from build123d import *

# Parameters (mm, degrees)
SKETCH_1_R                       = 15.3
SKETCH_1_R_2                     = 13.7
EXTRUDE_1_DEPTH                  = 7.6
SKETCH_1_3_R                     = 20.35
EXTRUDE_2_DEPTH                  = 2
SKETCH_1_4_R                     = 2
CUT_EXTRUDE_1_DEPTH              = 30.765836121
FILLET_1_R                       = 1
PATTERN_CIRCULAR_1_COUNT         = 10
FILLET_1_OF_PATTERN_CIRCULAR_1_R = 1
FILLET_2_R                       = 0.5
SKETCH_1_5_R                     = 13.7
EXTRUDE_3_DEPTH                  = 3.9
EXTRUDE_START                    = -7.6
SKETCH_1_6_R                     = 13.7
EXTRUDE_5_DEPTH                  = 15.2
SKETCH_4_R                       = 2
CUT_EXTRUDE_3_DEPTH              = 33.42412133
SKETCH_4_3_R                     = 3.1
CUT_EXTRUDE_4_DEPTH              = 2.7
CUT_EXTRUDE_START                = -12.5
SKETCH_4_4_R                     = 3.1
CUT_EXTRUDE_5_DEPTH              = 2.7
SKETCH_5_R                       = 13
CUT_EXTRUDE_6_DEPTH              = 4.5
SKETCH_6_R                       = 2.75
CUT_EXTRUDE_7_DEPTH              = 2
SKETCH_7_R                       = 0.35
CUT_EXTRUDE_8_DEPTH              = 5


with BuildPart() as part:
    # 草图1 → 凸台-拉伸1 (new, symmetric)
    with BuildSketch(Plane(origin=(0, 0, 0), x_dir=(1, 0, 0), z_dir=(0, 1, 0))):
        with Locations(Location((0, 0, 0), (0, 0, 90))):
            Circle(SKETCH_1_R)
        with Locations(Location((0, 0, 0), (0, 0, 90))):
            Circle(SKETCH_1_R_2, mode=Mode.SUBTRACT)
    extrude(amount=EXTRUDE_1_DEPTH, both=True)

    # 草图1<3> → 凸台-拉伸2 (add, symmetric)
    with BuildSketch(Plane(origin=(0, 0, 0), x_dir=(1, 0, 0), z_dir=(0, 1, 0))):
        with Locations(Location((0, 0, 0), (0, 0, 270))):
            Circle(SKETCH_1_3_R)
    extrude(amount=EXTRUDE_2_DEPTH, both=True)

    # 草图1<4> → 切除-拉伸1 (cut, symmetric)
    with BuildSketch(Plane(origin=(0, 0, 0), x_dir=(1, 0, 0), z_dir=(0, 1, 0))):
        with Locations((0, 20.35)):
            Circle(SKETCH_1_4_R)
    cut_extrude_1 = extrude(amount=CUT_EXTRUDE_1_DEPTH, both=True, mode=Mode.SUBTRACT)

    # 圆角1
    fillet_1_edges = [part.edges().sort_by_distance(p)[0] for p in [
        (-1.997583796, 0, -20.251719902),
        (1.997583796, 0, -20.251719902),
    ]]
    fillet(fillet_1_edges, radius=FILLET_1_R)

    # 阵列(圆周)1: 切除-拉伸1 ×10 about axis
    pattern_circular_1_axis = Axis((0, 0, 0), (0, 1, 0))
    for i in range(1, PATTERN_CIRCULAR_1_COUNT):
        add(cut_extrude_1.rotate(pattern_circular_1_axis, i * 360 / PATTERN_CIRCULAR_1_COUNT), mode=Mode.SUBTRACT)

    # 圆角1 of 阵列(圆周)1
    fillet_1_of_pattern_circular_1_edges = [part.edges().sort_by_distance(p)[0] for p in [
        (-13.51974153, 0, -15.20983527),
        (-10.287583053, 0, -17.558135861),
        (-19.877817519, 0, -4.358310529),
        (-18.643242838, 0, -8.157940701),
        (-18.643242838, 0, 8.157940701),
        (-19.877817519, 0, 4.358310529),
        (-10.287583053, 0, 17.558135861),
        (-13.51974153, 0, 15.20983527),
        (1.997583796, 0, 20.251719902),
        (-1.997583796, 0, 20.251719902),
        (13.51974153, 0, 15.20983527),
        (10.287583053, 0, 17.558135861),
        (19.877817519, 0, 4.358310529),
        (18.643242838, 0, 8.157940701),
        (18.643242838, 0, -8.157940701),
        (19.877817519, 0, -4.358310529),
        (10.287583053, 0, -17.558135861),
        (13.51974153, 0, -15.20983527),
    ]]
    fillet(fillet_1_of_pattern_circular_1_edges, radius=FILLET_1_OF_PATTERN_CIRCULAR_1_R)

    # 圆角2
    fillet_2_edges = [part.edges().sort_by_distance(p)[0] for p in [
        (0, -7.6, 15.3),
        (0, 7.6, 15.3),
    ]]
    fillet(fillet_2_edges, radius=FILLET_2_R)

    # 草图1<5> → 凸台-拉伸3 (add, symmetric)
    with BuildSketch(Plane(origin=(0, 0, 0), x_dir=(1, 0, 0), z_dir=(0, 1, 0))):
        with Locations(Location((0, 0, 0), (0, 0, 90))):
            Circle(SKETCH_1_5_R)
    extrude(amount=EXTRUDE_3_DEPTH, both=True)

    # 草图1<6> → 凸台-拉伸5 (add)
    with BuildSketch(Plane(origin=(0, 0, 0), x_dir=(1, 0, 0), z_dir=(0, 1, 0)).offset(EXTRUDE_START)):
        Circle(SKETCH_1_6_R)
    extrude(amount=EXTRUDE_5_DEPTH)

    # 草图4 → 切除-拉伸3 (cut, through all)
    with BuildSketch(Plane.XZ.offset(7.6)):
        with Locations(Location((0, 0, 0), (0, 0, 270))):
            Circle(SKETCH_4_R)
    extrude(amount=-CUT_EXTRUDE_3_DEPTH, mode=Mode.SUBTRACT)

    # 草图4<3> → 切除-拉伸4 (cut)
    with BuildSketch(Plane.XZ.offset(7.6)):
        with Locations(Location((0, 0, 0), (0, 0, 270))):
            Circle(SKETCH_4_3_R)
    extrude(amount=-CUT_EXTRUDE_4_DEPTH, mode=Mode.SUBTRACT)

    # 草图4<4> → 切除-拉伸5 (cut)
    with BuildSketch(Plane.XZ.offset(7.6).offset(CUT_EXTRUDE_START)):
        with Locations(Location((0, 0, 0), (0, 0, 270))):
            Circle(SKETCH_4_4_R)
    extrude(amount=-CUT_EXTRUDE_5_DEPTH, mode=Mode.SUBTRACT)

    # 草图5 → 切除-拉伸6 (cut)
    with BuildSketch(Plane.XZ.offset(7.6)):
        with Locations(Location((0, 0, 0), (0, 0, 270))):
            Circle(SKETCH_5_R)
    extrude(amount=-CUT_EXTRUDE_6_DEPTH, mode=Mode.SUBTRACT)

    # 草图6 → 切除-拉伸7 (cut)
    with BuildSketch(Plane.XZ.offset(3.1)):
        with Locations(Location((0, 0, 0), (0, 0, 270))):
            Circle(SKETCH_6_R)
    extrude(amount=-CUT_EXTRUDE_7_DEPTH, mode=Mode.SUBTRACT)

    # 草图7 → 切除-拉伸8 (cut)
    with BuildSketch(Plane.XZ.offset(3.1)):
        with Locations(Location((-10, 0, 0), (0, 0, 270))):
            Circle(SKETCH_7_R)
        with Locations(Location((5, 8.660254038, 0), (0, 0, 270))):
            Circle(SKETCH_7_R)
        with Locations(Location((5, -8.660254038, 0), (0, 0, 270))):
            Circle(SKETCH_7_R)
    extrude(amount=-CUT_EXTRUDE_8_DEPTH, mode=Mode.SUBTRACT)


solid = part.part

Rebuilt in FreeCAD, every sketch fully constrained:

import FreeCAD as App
import Part
import Sketcher
from FreeCAD import Vector
Q = App.Units.Quantity


def edges_at(feature, points):
    """Names of the edges that pass closest to the given points."""
    edges = feature.Shape.Edges
    near = lambda p: min(range(len(edges)), key=lambda i: edges[i].distToShape(Part.Vertex(*p))[0])
    return sorted({f"Edge{near(p) + 1}" for p in points})

doc = App.newDocument("Part")
body = doc.addObject("PartDesign::Body", "Body")

# Sketch on XZ plane
sketch1 = body.newObject("Sketcher::SketchObject", "Sketch")
sketch1.AttachmentSupport = (doc.getObject("XZ_Plane"), [""])
sketch1.MapMode = "FlatFace"
sketch1.addGeometry([
    Part.Circle(Vector(0, 0, 0), Vector(0, 0, 1), 15),
    Part.Circle(Vector(0, 0, 0), Vector(0, 0, 1), 14),
], False)
sketch1.addConstraint([
    Sketcher.Constraint("Coincident", 0, 3, -1, 1),
    Sketcher.Constraint("Coincident", 1, 3, -1, 1),
    Sketcher.Constraint("Diameter", 0, Q("30.6 mm")),
    Sketcher.Constraint("Diameter", 1, Q("27.4 mm")),
])
pad1 = body.newObject("PartDesign::Pad", "Pad")
pad1.Profile = sketch1
pad1.Length = 15.2
pad1.Midplane = True

# Sketch on XZ plane
sketch2 = body.newObject("Sketcher::SketchObject", "Sketch001")
sketch2.AttachmentSupport = (doc.getObject("XZ_Plane"), [""])
sketch2.MapMode = "FlatFace"
sketch2.addGeometry(Part.Circle(Vector(0, 0, 0), Vector(0, 0, 1), 20), False)
sketch2.addConstraint([
    Sketcher.Constraint("Coincident", 0, 3, -1, 1),
    Sketcher.Constraint("Diameter", 0, Q("40.7 mm")),
])
pad2 = body.newObject("PartDesign::Pad", "Pad001")
pad2.Profile = sketch2
pad2.Length = 4
pad2.Midplane = True

# Sketch on XZ plane
sketch3 = body.newObject("Sketcher::SketchObject", "Sketch002")
sketch3.AttachmentSupport = (doc.getObject("XZ_Plane"), [""])
sketch3.MapMode = "FlatFace"
sketch3.addGeometry(Part.Circle(Vector(0, -20.4, 0), Vector(0, 0, 1), 2), False)
sketch3.addConstraint([
    Sketcher.Constraint("PointOnObject", 0, 3, -2),
    Sketcher.Constraint("Diameter", 0, Q("4 mm")),
    Sketcher.Constraint("DistanceY", 0, 3, -1, 1, Q("20.35 mm")),
])
pocket1 = body.newObject("PartDesign::Pocket", "Pocket")
pocket1.Profile = sketch3
pocket1.Length = 61.531672
pocket1.Midplane = True
doc.recompute()

fillet = body.newObject("PartDesign::Fillet", "Fillet")
fillet.Base = (pocket1, edges_at(pocket1, [(-1.998, 0, -20.252), (1.998, 0, -20.252)]))
fillet.Radius = 1
doc.recompute()

polarpattern = body.newObject("PartDesign::PolarPattern", "PolarPattern")
polarpattern.Originals = [pocket1]
polarpattern.Axis = (doc.getObject("Y_Axis"), [""])
polarpattern.Angle = 360
polarpattern.Occurrences = 10
body.Tip = polarpattern
doc.recompute()

fillet2 = body.newObject("PartDesign::Fillet", "Fillet001")
fillet2.Base = (polarpattern, edges_at(polarpattern, [
    (-13.52, 0, -15.21),
    (-10.288, 0, -17.558),
    (-19.878, 0, -4.358),
    (-18.643, 0, -8.158),
    (-18.643, 0, 8.158),
    (-19.878, 0, 4.358),
    (-10.288, 0, 17.558),
    (-13.52, 0, 15.21),
    (1.998, 0, 20.252),
    (-1.998, 0, 20.252),
    (13.52, 0, 15.21),
    (10.288, 0, 17.558),
    (19.878, 0, 4.358),
    (18.643, 0, 8.158),
    (18.643, 0, -8.158),
    (19.878, 0, -4.358),
    (10.288, 0, -17.558),
    (13.52, 0, -15.21),
]))
fillet2.Radius = 1
doc.recompute()

fillet3 = body.newObject("PartDesign::Fillet", "Fillet002")
fillet3.Base = (fillet2, edges_at(fillet2, [(0, -7.6, 15.3), (0, 7.6, 15.3)]))
fillet3.Radius = 0.5

# Sketch on XZ plane
sketch4 = body.newObject("Sketcher::SketchObject", "Sketch003")
sketch4.AttachmentSupport = (doc.getObject("XZ_Plane"), [""])
sketch4.MapMode = "FlatFace"
sketch4.addGeometry(Part.Circle(Vector(0, 0, 0), Vector(0, 0, 1), 14), False)
sketch4.addConstraint([
    Sketcher.Constraint("Coincident", 0, 3, -1, 1),
    Sketcher.Constraint("Diameter", 0, Q("27.4 mm")),
])
pad3 = body.newObject("PartDesign::Pad", "Pad002")
pad3.Profile = sketch4
pad3.Length = 7.8
pad3.Midplane = True

# Sketch on XZ plane
sketch5 = body.newObject("Sketcher::SketchObject", "Sketch004")
sketch5.AttachmentSupport = (doc.getObject("XZ_Plane"), [""])
sketch5.MapMode = "FlatFace"
sketch5.AttachmentOffset = App.Placement(Vector(0, 0, 7.6), App.Rotation())
sketch5.addGeometry(Part.Circle(Vector(0, 0, 0), Vector(0, 0, 1), 14), False)
sketch5.addConstraint([
    Sketcher.Constraint("Coincident", 0, 3, -1, 1),
    Sketcher.Constraint("Diameter", 0, Q("27.4 mm")),
])
pad4 = body.newObject("PartDesign::Pad", "Pad003")
pad4.Profile = sketch5
pad4.Length = 15.2
pad4.Reversed = True

# Sketch on XZ plane
sketch6 = body.newObject("Sketcher::SketchObject", "Sketch005")
sketch6.AttachmentSupport = (doc.getObject("XZ_Plane"), [""])
sketch6.MapMode = "FlatFace"
sketch6.AttachmentOffset = App.Placement(Vector(0, 0, 7.6), App.Rotation())
sketch6.addGeometry(Part.Circle(Vector(0, 0, 0), Vector(0, 0, 1), 2), False)
sketch6.addConstraint([
    Sketcher.Constraint("Coincident", 0, 3, -1, 1),
    Sketcher.Constraint("Diameter", 0, Q("4 mm")),
])
pocket2 = body.newObject("PartDesign::Pocket", "Pocket001")
pocket2.Profile = sketch6
pocket2.Type = "ThroughAll"

# Sketch on XZ plane
sketch7 = body.newObject("Sketcher::SketchObject", "Sketch006")
sketch7.AttachmentSupport = (doc.getObject("XZ_Plane"), [""])
sketch7.MapMode = "FlatFace"
sketch7.AttachmentOffset = App.Placement(Vector(0, 0, 7.6), App.Rotation())
sketch7.addGeometry(Part.Circle(Vector(0, 0, 0), Vector(0, 0, 1), 3.1), False)
sketch7.addConstraint([
    Sketcher.Constraint("Coincident", 0, 3, -1, 1),
    Sketcher.Constraint("Diameter", 0, Q("6.2 mm")),
])
pocket3 = body.newObject("PartDesign::Pocket", "Pocket002")
pocket3.Profile = sketch7
pocket3.Length = 2.7

# Sketch on XZ plane
sketch8 = body.newObject("Sketcher::SketchObject", "Sketch007")
sketch8.AttachmentSupport = (doc.getObject("XZ_Plane"), [""])
sketch8.MapMode = "FlatFace"
sketch8.AttachmentOffset = App.Placement(Vector(0, 0, -4.9), App.Rotation())
sketch8.addGeometry(Part.Circle(Vector(0, 0, 0), Vector(0, 0, 1), 3.1), False)
sketch8.addConstraint([
    Sketcher.Constraint("Coincident", 0, 3, -1, 1),
    Sketcher.Constraint("Diameter", 0, Q("6.2 mm")),
])
pocket4 = body.newObject("PartDesign::Pocket", "Pocket003")
pocket4.Profile = sketch8
pocket4.Length = 2.7

# Sketch on XZ plane
sketch9 = body.newObject("Sketcher::SketchObject", "Sketch008")
sketch9.AttachmentSupport = (doc.getObject("XZ_Plane"), [""])
sketch9.MapMode = "FlatFace"
sketch9.AttachmentOffset = App.Placement(Vector(0, 0, 7.6), App.Rotation())
sketch9.addGeometry(Part.Circle(Vector(0, 0, 0), Vector(0, 0, 1), 13), False)
sketch9.addConstraint([
    Sketcher.Constraint("Coincident", 0, 3, -1, 1),
    Sketcher.Constraint("Diameter", 0, Q("26 mm")),
])
pocket5 = body.newObject("PartDesign::Pocket", "Pocket004")
pocket5.Profile = sketch9
pocket5.Length = 4.5

# Sketch on XZ plane
sketch10 = body.newObject("Sketcher::SketchObject", "Sketch009")
sketch10.AttachmentSupport = (doc.getObject("XZ_Plane"), [""])
sketch10.MapMode = "FlatFace"
sketch10.AttachmentOffset = App.Placement(Vector(0, 0, 3.1), App.Rotation())
sketch10.addGeometry(Part.Circle(Vector(0, 0, 0), Vector(0, 0, 1), 2.8), False)
sketch10.addConstraint([
    Sketcher.Constraint("Coincident", 0, 3, -1, 1),
    Sketcher.Constraint("Diameter", 0, Q("5.5 mm")),
])
pocket6 = body.newObject("PartDesign::Pocket", "Pocket005")
pocket6.Profile = sketch10
pocket6.Length = 2

# Sketch on XZ plane
sketch11 = body.newObject("Sketcher::SketchObject", "Sketch010")
sketch11.AttachmentSupport = (doc.getObject("XZ_Plane"), [""])
sketch11.MapMode = "FlatFace"
sketch11.AttachmentOffset = App.Placement(Vector(0, 0, 3.1), App.Rotation())
sketch11.addGeometry([
    Part.Circle(Vector(-10, 0, 0), Vector(0, 0, 1), 0.35),
    Part.Circle(Vector(5, 8.66, 0), Vector(0, 0, 1), 0.35),
    Part.Circle(Vector(5, -8.66, 0), Vector(0, 0, 1), 0.35),
], False)
sketch11.addConstraint([
    Sketcher.Constraint("Equal", 0, 1),
    Sketcher.Constraint("Equal", 1, 2),
    Sketcher.Constraint("Symmetric", 1, 3, 2, 3, -1),
    Sketcher.Constraint("PointOnObject", 0, 3, -1),
    Sketcher.Constraint("Diameter", 0, Q("0.7 mm")),
    Sketcher.Constraint("DistanceX", 0, 3, -1, 1, Q("10 mm")),
    Sketcher.Constraint("DistanceX", -1, 1, 1, 3, Q("5 mm")),
    Sketcher.Constraint("DistanceY", 2, 3, 1, 3, Q("17.320508 mm")),
])
pocket7 = body.newObject("PartDesign::Pocket", "Pocket006")
pocket7.Profile = sketch11
pocket7.Length = 5

doc.recompute()
